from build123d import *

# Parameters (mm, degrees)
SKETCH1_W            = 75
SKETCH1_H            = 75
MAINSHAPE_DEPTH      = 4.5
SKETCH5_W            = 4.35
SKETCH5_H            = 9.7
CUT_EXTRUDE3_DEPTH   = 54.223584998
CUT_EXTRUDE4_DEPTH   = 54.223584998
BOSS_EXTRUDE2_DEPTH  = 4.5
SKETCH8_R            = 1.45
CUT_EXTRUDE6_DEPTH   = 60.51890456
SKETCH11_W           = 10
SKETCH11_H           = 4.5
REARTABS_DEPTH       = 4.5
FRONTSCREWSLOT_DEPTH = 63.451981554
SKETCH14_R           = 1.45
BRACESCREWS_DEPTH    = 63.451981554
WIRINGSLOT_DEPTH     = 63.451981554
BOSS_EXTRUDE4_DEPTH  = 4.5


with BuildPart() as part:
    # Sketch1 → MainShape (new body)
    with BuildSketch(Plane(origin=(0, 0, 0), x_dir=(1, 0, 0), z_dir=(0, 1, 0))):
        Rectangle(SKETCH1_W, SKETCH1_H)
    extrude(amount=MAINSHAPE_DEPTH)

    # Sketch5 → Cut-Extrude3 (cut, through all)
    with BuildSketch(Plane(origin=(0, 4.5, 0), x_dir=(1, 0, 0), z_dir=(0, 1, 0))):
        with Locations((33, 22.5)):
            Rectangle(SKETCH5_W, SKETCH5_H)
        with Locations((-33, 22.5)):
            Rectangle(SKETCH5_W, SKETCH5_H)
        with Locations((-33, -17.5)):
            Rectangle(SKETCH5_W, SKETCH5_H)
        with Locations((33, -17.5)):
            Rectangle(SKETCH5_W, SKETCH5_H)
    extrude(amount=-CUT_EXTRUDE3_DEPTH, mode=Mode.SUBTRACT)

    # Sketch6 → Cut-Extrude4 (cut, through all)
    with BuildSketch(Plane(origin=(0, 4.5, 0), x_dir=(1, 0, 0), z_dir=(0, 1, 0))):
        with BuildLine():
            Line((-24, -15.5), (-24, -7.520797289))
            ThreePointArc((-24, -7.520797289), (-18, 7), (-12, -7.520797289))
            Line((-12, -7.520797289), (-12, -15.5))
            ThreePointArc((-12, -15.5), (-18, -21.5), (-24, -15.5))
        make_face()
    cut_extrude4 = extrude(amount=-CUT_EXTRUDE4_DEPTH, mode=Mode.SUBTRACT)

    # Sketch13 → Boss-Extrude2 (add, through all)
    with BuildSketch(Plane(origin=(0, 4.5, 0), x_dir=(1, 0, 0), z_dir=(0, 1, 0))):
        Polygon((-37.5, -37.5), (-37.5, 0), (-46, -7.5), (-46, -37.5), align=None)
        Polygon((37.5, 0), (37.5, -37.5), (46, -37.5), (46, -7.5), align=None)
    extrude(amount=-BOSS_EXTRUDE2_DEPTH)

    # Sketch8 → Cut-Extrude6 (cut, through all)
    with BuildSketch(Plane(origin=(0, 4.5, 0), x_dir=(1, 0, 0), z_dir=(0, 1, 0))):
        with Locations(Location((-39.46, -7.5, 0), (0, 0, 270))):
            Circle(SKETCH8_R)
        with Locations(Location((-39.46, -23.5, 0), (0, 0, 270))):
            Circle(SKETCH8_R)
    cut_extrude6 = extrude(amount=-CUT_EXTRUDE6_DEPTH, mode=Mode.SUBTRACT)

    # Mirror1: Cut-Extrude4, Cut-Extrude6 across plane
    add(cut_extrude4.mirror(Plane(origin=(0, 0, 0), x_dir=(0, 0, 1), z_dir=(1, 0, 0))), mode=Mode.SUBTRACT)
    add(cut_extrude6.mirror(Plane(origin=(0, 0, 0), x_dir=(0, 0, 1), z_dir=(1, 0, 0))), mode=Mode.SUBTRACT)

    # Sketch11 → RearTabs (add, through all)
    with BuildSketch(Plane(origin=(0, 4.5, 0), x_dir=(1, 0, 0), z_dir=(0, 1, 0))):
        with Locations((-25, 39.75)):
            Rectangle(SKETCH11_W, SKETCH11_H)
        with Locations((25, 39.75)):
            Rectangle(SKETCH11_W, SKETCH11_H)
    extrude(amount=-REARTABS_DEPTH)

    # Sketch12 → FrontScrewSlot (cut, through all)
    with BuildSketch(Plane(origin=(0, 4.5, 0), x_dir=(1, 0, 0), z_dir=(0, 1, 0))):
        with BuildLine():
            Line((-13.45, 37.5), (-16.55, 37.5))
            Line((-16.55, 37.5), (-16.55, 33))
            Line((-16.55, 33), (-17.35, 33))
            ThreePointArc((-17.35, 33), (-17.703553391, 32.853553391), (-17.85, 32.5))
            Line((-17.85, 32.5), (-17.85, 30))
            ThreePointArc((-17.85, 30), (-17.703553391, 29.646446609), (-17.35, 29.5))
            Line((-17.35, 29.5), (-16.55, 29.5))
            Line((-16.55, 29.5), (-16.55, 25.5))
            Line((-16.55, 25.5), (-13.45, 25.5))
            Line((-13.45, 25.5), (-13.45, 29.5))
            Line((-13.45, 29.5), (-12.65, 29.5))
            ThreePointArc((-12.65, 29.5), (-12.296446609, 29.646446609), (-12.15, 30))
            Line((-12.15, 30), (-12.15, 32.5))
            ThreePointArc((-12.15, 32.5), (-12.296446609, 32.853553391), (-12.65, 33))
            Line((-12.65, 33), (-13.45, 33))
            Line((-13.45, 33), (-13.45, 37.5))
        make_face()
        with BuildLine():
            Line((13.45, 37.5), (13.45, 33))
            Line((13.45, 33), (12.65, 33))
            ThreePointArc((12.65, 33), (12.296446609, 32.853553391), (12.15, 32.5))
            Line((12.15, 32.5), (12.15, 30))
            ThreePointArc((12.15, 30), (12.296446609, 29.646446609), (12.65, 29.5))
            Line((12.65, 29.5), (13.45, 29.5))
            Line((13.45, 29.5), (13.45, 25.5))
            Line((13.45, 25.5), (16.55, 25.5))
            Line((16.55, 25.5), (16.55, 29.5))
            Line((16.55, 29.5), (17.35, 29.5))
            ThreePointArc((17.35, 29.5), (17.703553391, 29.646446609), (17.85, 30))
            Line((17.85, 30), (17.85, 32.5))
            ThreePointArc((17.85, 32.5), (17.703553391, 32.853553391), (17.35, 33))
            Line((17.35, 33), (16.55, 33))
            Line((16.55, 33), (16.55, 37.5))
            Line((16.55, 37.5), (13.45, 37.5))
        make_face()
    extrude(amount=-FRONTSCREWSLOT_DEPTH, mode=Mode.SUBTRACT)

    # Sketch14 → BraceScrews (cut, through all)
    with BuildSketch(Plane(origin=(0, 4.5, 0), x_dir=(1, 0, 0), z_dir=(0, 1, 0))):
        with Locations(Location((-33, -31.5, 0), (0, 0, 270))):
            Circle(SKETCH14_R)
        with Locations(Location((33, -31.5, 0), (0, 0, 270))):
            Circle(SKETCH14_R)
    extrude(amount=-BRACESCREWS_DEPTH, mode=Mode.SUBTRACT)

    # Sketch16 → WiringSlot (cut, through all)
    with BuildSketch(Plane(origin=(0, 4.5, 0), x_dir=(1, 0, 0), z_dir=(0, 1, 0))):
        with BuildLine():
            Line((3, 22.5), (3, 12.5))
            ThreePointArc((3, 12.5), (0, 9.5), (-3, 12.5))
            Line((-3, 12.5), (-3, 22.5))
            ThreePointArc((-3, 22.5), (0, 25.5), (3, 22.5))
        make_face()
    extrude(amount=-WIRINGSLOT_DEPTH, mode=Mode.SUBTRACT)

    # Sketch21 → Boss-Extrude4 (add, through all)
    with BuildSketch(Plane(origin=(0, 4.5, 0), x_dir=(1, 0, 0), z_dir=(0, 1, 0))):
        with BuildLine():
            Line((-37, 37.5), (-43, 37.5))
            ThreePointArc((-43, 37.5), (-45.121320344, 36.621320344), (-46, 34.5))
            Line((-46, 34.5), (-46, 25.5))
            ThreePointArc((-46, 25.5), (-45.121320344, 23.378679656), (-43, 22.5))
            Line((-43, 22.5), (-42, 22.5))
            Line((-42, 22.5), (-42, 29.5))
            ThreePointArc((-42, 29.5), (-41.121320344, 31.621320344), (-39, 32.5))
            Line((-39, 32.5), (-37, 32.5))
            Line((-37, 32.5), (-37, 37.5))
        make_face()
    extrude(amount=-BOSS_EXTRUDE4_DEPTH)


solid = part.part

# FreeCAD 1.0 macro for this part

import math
import FreeCAD as App
import Part
import Sketcher
from FreeCAD import Vector
Q = App.Units.Quantity

doc = App.newDocument("Part")
params = doc.addObject("Spreadsheet::Sheet", "Params")
for row, (alias, value) in enumerate([
    ("sketch1_width", "75 mm"),
    ("pad1_length", "4.5 mm"),
    ("sketch2_height", "9.7 mm"),
    ("sketch2_width", "4.35 mm"),
    ("sketch3_radius", "6 mm"),
    ("sketch3_radius2", "8.5 mm"),
    ("sketch4_height", "30 mm"),
    ("sketch4_width", "8.5 mm"),
    ("sketch4_height2", "37.5 mm"),
    ("sketch5_diameter", "2.9 mm"),
    ("sketch6_width", "10 mm"),
    ("sketch6_height", "4.5 mm"),
    ("pad3_length", "4.5 mm"),
    ("sketch7_radius", "0.5 mm"),
    ("sketch7_height", "4 mm"),
    ("sketch7_width", "3.1 mm"),
    ("sketch7_width2", "0.8 mm"),
    ("sketch7_height2", "4.5 mm"),
    ("sketch8_diameter", "2.9 mm"),
    ("sketch9_radius", "3 mm"),
    ("sketch9_height", "10 mm"),
    ("sketch10_radius", "3 mm"),
    ("sketch10_width", "6 mm"),
    ("sketch10_width2", "1 mm"),
    ("sketch10_height", "9 mm"),
    ("sketch10_height2", "7 mm"),
    ("pad4_length", "4.5 mm"),
], start=1):
    params.set(f"A{row}", alias)
    params.set(f"B{row}", "=" + value)
    params.setAlias(f"B{row}", alias)

body = doc.addObject("PartDesign::Body", "Body")

# Sketch on XZ plane
sketch1 = doc.addObject("Sketcher::SketchObject", "Sketch")
body.addObject(sketch1)
sketch1.AttachmentSupport = (doc.XZ_Plane, [""])
sketch1.MapMode = "FlatFace"
sketch1.addGeometry(Part.LineSegment(Vector(-37.5, -37.5, 0), Vector(-37.5, 37.5, 0)), False)
sketch1.addGeometry(Part.LineSegment(Vector(-37.5, 37.5, 0), Vector(37.5, 37.5, 0)), False)
sketch1.addGeometry(Part.LineSegment(Vector(37.5, 37.5, 0), Vector(37.5, -37.5, 0)), False)
sketch1.addGeometry(Part.LineSegment(Vector(37.5, -37.5, 0), Vector(-37.5, -37.5, 0)), False)
sketch1.addConstraint(Sketcher.Constraint("Coincident", 0, 2, 1, 1))
sketch1.addConstraint(Sketcher.Constraint("Coincident", 1, 2, 2, 1))
sketch1.addConstraint(Sketcher.Constraint("Coincident", 2, 2, 3, 1))
sketch1.addConstraint(Sketcher.Constraint("Coincident", 3, 2, 0, 1))
sketch1.addConstraint(Sketcher.Constraint("Vertical", 0))
sketch1.addConstraint(Sketcher.Constraint("Horizontal", 1))
sketch1.addConstraint(Sketcher.Constraint("Vertical", 2))
sketch1.addConstraint(Sketcher.Constraint("Horizontal", 3))
sketch1.addConstraint(Sketcher.Constraint("Symmetric", 0, 2, 2, 2, -1, 1))
sketch1.addConstraint(Sketcher.Constraint("Equal", 3, 0))
sketch1.addConstraint(Sketcher.Constraint("DistanceX", 1, 1, 1, 2, Q("75 mm")))
sketch1.setExpression("Constraints[10]", "Params.sketch1_width")
pad1 = doc.addObject("PartDesign::Pad", "Pad")
body.addObject(pad1)
pad1.Profile = sketch1
pad1.setExpression("Length", "Params.pad1_length")
pad1.Reversed = True

# Sketch on XZ plane
sketch2 = doc.addObject("Sketcher::SketchObject", "Sketch001")
body.addObject(sketch2)
sketch2.AttachmentSupport = (doc.XZ_Plane, [""])
sketch2.MapMode = "FlatFace"
sketch2.AttachmentOffset = App.Placement(Vector(0, 0, -4.5), App.Rotation())
sketch2.addGeometry(Part.LineSegment(Vector(30.825, -27.35, 0), Vector(30.825, -17.65, 0)), False)
sketch2.addGeometry(Part.LineSegment(Vector(30.825, -17.65, 0), Vector(35.175, -17.65, 0)), False)
sketch2.addGeometry(Part.LineSegment(Vector(35.175, -17.65, 0), Vector(35.175, -27.35, 0)), False)
sketch2.addGeometry(Part.LineSegment(Vector(35.175, -27.35, 0), Vector(30.825, -27.35, 0)), False)
sketch2.addGeometry(Part.LineSegment(Vector(-35.175, -27.35, 0), Vector(-35.175, -17.65, 0)), False)
sketch2.addGeometry(Part.LineSegment(Vector(-35.175, -17.65, 0), Vector(-30.825, -17.65, 0)), False)
sketch2.addGeometry(Part.LineSegment(Vector(-30.825, -17.65, 0), Vector(-30.825, -27.35, 0)), False)
sketch2.addGeometry(Part.LineSegment(Vector(-30.825, -27.35, 0), Vector(-35.175, -27.35, 0)), False)
sketch2.addGeometry(Part.LineSegment(Vector(-35.175, 12.65, 0), Vector(-35.175, 22.35, 0)), False)
sketch2.addGeometry(Part.LineSegment(Vector(-35.175, 22.35, 0), Vector(-30.825, 22.35, 0)), False)
sketch2.addGeometry(Part.LineSegment(Vector(-30.825, 22.35, 0), Vector(-30.825, 12.65, 0)), False)
sketch2.addGeometry(Part.LineSegment(Vector(-30.825, 12.65, 0), Vector(-35.175, 12.65, 0)), False)
sketch2.addGeometry(Part.LineSegment(Vector(30.825, 12.65, 0), Vector(30.825, 22.35, 0)), False)
sketch2.addGeometry(Part.LineSegment(Vector(30.825, 22.35, 0), Vector(35.175, 22.35, 0)), False)
sketch2.addGeometry(Part.LineSegment(Vector(35.175, 22.35, 0), Vector(35.175, 12.65, 0)), False)
sketch2.addGeometry(Part.LineSegment(Vector(35.175, 12.65, 0), Vector(30.825, 12.65, 0)), False)
sketch2.addConstraint(Sketcher.Constraint("Coincident", 0, 2, 1, 1))
sketch2.addConstraint(Sketcher.Constraint("Coincident", 1, 2, 2, 1))
sketch2.addConstraint(Sketcher.Constraint("Coincident", 2, 2, 3, 1))
sketch2.addConstraint(Sketcher.Constraint("Coincident", 3, 2, 0, 1))
sketch2.addConstraint(Sketcher.Constraint("Coincident", 4, 2, 5, 1))
sketch2.addConstraint(Sketcher.Constraint("Coincident", 5, 2, 6, 1))
sketch2.addConstraint(Sketcher.Constraint("Coincident", 6, 2, 7, 1))
sketch2.addConstraint(Sketcher.Constraint("Coincident", 7, 2, 4, 1))
sketch2.addConstraint(Sketcher.Constraint("Coincident", 8, 2, 9, 1))
sketch2.addConstraint(Sketcher.Constraint("Coincident", 9, 2, 10, 1))
sketch2.addConstraint(Sketcher.Constraint("Coincident", 10, 2, 11, 1))
sketch2.addConstraint(Sketcher.Constraint("Coincident", 11, 2, 8, 1))
sketch2.addConstraint(Sketcher.Constraint("Coincident", 12, 2, 13, 1))
sketch2.addConstraint(Sketcher.Constraint("Coincident", 13, 2, 14, 1))
sketch2.addConstraint(Sketcher.Constraint("Coincident", 14, 2, 15, 1))
sketch2.addConstraint(Sketcher.Constraint("Coincident", 15, 2, 12, 1))
sketch2.addConstraint(Sketcher.Constraint("Vertical", 0))
sketch2.addConstraint(Sketcher.Constraint("Horizontal", 1))
sketch2.addConstraint(Sketcher.Constraint("Vertical", 2))
sketch2.addConstraint(Sketcher.Constraint("Horizontal", 3))
sketch2.addConstraint(Sketcher.Constraint("Vertical", 4))
sketch2.addConstraint(Sketcher.Constraint("Horizontal", 5))
sketch2.addConstraint(Sketcher.Constraint("Vertical", 6))
sketch2.addConstraint(Sketcher.Constraint("Horizontal", 7))
sketch2.addConstraint(Sketcher.Constraint("Vertical", 8))
sketch2.addConstraint(Sketcher.Constraint("Horizontal", 9))
sketch2.addConstraint(Sketcher.Constraint("Vertical", 10))
sketch2.addConstraint(Sketcher.Constraint("Horizontal", 11))
sketch2.addConstraint(Sketcher.Constraint("Vertical", 12))
sketch2.addConstraint(Sketcher.Constraint("Horizontal", 13))
sketch2.addConstraint(Sketcher.Constraint("Vertical", 14))
sketch2.addConstraint(Sketcher.Constraint("Horizontal", 15))
sketch2.addConstraint(Sketcher.Constraint("Symmetric", 1, 2, 4, 2, -2))
sketch2.addConstraint(Sketcher.Constraint("Symmetric", 3, 2, 6, 2, -2))
sketch2.addConstraint(Sketcher.Constraint("Symmetric", 9, 2, 12, 2, -2))
sketch2.addConstraint(Sketcher.Constraint("Symmetric", 11, 2, 14, 2, -2))
sketch2.addConstraint(Sketcher.Constraint("Vertical", 7, 2, 8, 2))
sketch2.addConstraint(Sketcher.Constraint("Vertical", 6, 2, 9, 2))
sketch2.addConstraint(Sketcher.Constraint("Equal", 6, 8))
sketch2.addConstraint(Sketcher.Constraint("DistanceY", 0, 1, 0, 2, Q("9.7 mm")))
sketch2.addConstraint(Sketcher.Constraint("DistanceX", 4, 2, 0, 2, Q("66 mm")))
sketch2.addConstraint(Sketcher.Constraint("DistanceY", 4, 2, 8, 2, Q("40 mm")))
sketch2.addConstraint(Sketcher.Constraint("DistanceX", 1, 1, 1, 2, Q("4.35 mm")))
sketch2.addConstraint(Sketcher.Constraint("DistanceY", 0, 2, -1, 1, Q("17.65 mm")))
sketch2.setExpression("Constraints[39]", "Params.sketch2_height")
sketch2.setExpression("Constraints[42]", "Params.sketch2_width")
pocket1 = doc.addObject("PartDesign::Pocket", "Pocket")
body.addObject(pocket1)
pocket1.Profile = sketch2
pocket1.Type = "ThroughAll"
pocket1.Reversed = True

# Sketch on XZ plane
sketch3 = doc.addObject("Sketcher::SketchObject", "Sketch002")
body.addObject(sketch3)
sketch3.AttachmentSupport = (doc.XZ_Plane, [""])
sketch3.MapMode = "FlatFace"
sketch3.AttachmentOffset = App.Placement(Vector(0, 0, -4.5), App.Rotation())
sketch3.addGeometry(Part.LineSegment(Vector(-24, 7.520797, 0), Vector(-24, 15.5, 0)), False)
sketch3.addGeometry(Part.ArcOfCircle(Part.Circle(Vector(-18, 15.5, 0), Vector(0, 0, 1), 6), math.radians(0), math.radians(180)), False)
sketch3.addGeometry(Part.LineSegment(Vector(-12, 15.5, 0), Vector(-12, 7.520797, 0)), False)
sketch3.addGeometry(Part.ArcOfCircle(Part.Circle(Vector(-18, 1.5, 0), Vector(0, 0, 1), 8.5), math.radians(134.900872), math.radians(405.099128)), False)
sketch3.addConstraint(Sketcher.Constraint("Tangent", 0, 2, 1, 2))
sketch3.addConstraint(Sketcher.Constraint("Tangent", 1, 1, 2, 1))
sketch3.addConstraint(Sketcher.Constraint("Coincident", 2, 2, 3, 2))
sketch3.addConstraint(Sketcher.Constraint("Coincident", 3, 1, 0, 1))
sketch3.addConstraint(Sketcher.Constraint("Vertical", 0))
sketch3.addConstraint(Sketcher.Constraint("Vertical", 2))
sketch3.addConstraint(Sketcher.Constraint("Horizontal", 2, 2, 3, 1))
sketch3.addConstraint(Sketcher.Constraint("Radius", 1, Q("6 mm")))
sketch3.addConstraint(Sketcher.Constraint("Radius", 3, Q("8.5 mm")))
sketch3.addConstraint(Sketcher.Constraint("DistanceX", 1, 3, -1, 1, Q("18 mm")))
sketch3.addConstraint(Sketcher.Constraint("DistanceY", 3, 3, 1, 3, Q("14 mm")))
sketch3.addConstraint(Sketcher.Constraint("DistanceY", -1, 1, 1, 3, Q("15.5 mm")))
sketch3.setExpression("Constraints[7]", "Params.sketch3_radius")
sketch3.setExpression("Constraints[8]", "Params.sketch3_radius2")
pocket2 = doc.addObject("PartDesign::Pocket", "Pocket001")
body.addObject(pocket2)
pocket2.Profile = sketch3
pocket2.Type = "ThroughAll"
pocket2.Reversed = True

# Sketch on XZ plane
sketch4 = doc.addObject("Sketcher::SketchObject", "Sketch003")
body.addObject(sketch4)
sketch4.AttachmentSupport = (doc.XZ_Plane, [""])
sketch4.MapMode = "FlatFace"
sketch4.AttachmentOffset = App.Placement(Vector(0, 0, -4.5), App.Rotation())
sketch4.addGeometry(Part.LineSegment(Vector(-37.5, 37.5, 0), Vector(-37.5, 0, 0)), False)
sketch4.addGeometry(Part.LineSegment(Vector(-37.5, 0, 0), Vector(-46, 7.5, 0)), False)
sketch4.addGeometry(Part.LineSegment(Vector(-46, 7.5, 0), Vector(-46, 37.5, 0)), False)
sketch4.addGeometry(Part.LineSegment(Vector(-46, 37.5, 0), Vector(-37.5, 37.5, 0)), False)
sketch4.addGeometry(Part.LineSegment(Vector(37.5, 0, 0), Vector(37.5, 37.5, 0)), False)
sketch4.addGeometry(Part.LineSegment(Vector(37.5, 37.5, 0), Vector(46, 37.5, 0)), False)
sketch4.addGeometry(Part.LineSegment(Vector(46, 37.5, 0), Vector(46, 7.5, 0)), False)
sketch4.addGeometry(Part.LineSegment(Vector(46, 7.5, 0), Vector(37.5, 0, 0)), False)
sketch4.addConstraint(Sketcher.Constraint("Coincident", 0, 2, 1, 1))
sketch4.addConstraint(Sketcher.Constraint("Coincident", 1, 2, 2, 1))
sketch4.addConstraint(Sketcher.Constraint("Coincident", 2, 2, 3, 1))
sketch4.addConstraint(Sketcher.Constraint("Coincident", 3, 2, 0, 1))
sketch4.addConstraint(Sketcher.Constraint("Coincident", 4, 2, 5, 1))
sketch4.addConstraint(Sketcher.Constraint("Coincident", 5, 2, 6, 1))
sketch4.addConstraint(Sketcher.Constraint("Coincident", 6, 2, 7, 1))
sketch4.addConstraint(Sketcher.Constraint("Coincident", 7, 2, 4, 1))
sketch4.addConstraint(Sketcher.Constraint("Vertical", 0))
sketch4.addConstraint(Sketcher.Constraint("Vertical", 2))
sketch4.addConstraint(Sketcher.Constraint("Horizontal", 3))
sketch4.addConstraint(Sketcher.Constraint("Vertical", 4))
sketch4.addConstraint(Sketcher.Constraint("Horizontal", 5))
sketch4.addConstraint(Sketcher.Constraint("Vertical", 6))
sketch4.addConstraint(Sketcher.Constraint("Symmetric", 0, 2, 7, 2, -1, 1))
sketch4.addConstraint(Sketcher.Constraint("Symmetric", 2, 2, 5, 2, -2))
sketch4.addConstraint(Sketcher.Constraint("PointOnObject", 0, 2, -1))
sketch4.addConstraint(Sketcher.Constraint("Horizontal", 1, 2, 6, 2))
sketch4.addConstraint(Sketcher.Constraint("DistanceY", 2, 1, 2, 2, Q("30 mm")))
sketch4.addConstraint(Sketcher.Constraint("DistanceX", 3, 1, 3, 2, Q("8.5 mm")))
sketch4.addConstraint(Sketcher.Constraint("DistanceY", 0, 2, 0, 1, Q("37.5 mm")))
sketch4.addConstraint(Sketcher.Constraint("DistanceX", 1, 2, -1, 1, Q("46 mm")))
sketch4.setExpression("Constraints[18]", "Params.sketch4_height")
sketch4.setExpression("Constraints[19]", "Params.sketch4_width")
sketch4.setExpression("Constraints[20]", "Params.sketch4_height2")
pad2 = doc.addObject("PartDesign::Pad", "Pad001")
body.addObject(pad2)
pad2.Profile = sketch4
pad2.Type = "UpToLast"

# Sketch on XZ plane
sketch5 = doc.addObject("Sketcher::SketchObject", "Sketch004")
body.addObject(sketch5)
sketch5.AttachmentSupport = (doc.XZ_Plane, [""])
sketch5.MapMode = "FlatFace"
sketch5.AttachmentOffset = App.Placement(Vector(0, 0, -4.5), App.Rotation())
sketch5.addGeometry(Part.Circle(Vector(-39.46, 7.5, 0), Vector(0, 0, 1), 1.45), False)
sketch5.addGeometry(Part.Circle(Vector(-39.46, 23.5, 0), Vector(0, 0, 1), 1.45), False)
sketch5.addConstraint(Sketcher.Constraint("Equal", 0, 1))
sketch5.addConstraint(Sketcher.Constraint("Vertical", 0, 3, 1, 3))
sketch5.addConstraint(Sketcher.Constraint("Diameter", 0, Q("2.9 mm")))
sketch5.addConstraint(Sketcher.Constraint("DistanceY", 0, 3, 1, 3, Q("16 mm")))
sketch5.addConstraint(Sketcher.Constraint("DistanceY", -1, 1, 0, 3, Q("7.5 mm")))
sketch5.addConstraint(Sketcher.Constraint("DistanceX", 0, 3, -1, 1, Q("39.46 mm")))
sketch5.setExpression("Constraints[2]", "Params.sketch5_diameter")
pocket3 = doc.addObject("PartDesign::Pocket", "Pocket002")
body.addObject(pocket3)
pocket3.Profile = sketch5
pocket3.Type = "ThroughAll"
pocket3.Reversed = True
doc.recompute()

mirrored = doc.addObject("PartDesign::Mirrored", "Mirrored")
body.addObject(mirrored)
mirrored.Originals = [pocket2, pocket3]
mirrored.MirrorPlane = (doc.YZ_Plane, [""])
body.Tip = mirrored

# Sketch on XZ plane
sketch6 = doc.addObject("Sketcher::SketchObject", "Sketch005")
body.addObject(sketch6)
sketch6.AttachmentSupport = (doc.XZ_Plane, [""])
sketch6.MapMode = "FlatFace"
sketch6.AttachmentOffset = App.Placement(Vector(0, 0, -4.5), App.Rotation())
sketch6.addGeometry(Part.LineSegment(Vector(-30, -42, 0), Vector(-30, -37.5, 0)), False)
sketch6.addGeometry(Part.LineSegment(Vector(-30, -37.5, 0), Vector(-20, -37.5, 0)), False)
sketch6.addGeometry(Part.LineSegment(Vector(-20, -37.5, 0), Vector(-20, -42, 0)), False)
sketch6.addGeometry(Part.LineSegment(Vector(-20, -42, 0), Vector(-30, -42, 0)), False)
sketch6.addGeometry(Part.LineSegment(Vector(20, -42, 0), Vector(20, -37.5, 0)), False)
sketch6.addGeometry(Part.LineSegment(Vector(20, -37.5, 0), Vector(30, -37.5, 0)), False)
sketch6.addGeometry(Part.LineSegment(Vector(30, -37.5, 0), Vector(30, -42, 0)), False)
sketch6.addGeometry(Part.LineSegment(Vector(30, -42, 0), Vector(20, -42, 0)), False)
sketch6.addConstraint(Sketcher.Constraint("Coincident", 0, 2, 1, 1))
sketch6.addConstraint(Sketcher.Constraint("Coincident", 1, 2, 2, 1))
sketch6.addConstraint(Sketcher.Constraint("Coincident", 2, 2, 3, 1))
sketch6.addConstraint(Sketcher.Constraint("Coincident", 3, 2, 0, 1))
sketch6.addConstraint(Sketcher.Constraint("Coincident", 4, 2, 5, 1))
sketch6.addConstraint(Sketcher.Constraint("Coincident", 5, 2, 6, 1))
sketch6.addConstraint(Sketcher.Constraint("Coincident", 6, 2, 7, 1))
sketch6.addConstraint(Sketcher.Constraint("Coincident", 7, 2, 4, 1))
sketch6.addConstraint(Sketcher.Constraint("Vertical", 0))
sketch6.addConstraint(Sketcher.Constraint("Horizontal", 1))
sketch6.addConstraint(Sketcher.Constraint("Vertical", 2))
sketch6.addConstraint(Sketcher.Constraint("Horizontal", 3))
sketch6.addConstraint(Sketcher.Constraint("Vertical", 4))
sketch6.addConstraint(Sketcher.Constraint("Horizontal", 5))
sketch6.addConstraint(Sketcher.Constraint("Vertical", 6))
sketch6.addConstraint(Sketcher.Constraint("Horizontal", 7))
sketch6.addConstraint(Sketcher.Constraint("Symmetric", 1, 2, 4, 2, -2))
sketch6.addConstraint(Sketcher.Constraint("Symmetric", 3, 2, 6, 2, -2))
sketch6.addConstraint(Sketcher.Constraint("DistanceX", 1, 1, 1, 2, Q("10 mm")))
sketch6.addConstraint(Sketcher.Constraint("DistanceY", 0, 1, 0, 2, Q("4.5 mm")))
sketch6.addConstraint(Sketcher.Constraint("DistanceX", 0, 2, -1, 1, Q("30 mm")))
sketch6.addConstraint(Sketcher.Constraint("DistanceY", 2, 2, -1, 1, Q("42 mm")))
sketch6.setExpression("Constraints[18]", "Params.sketch6_width")
sketch6.setExpression("Constraints[19]", "Params.sketch6_height")
pad3 = doc.addObject("PartDesign::Pad", "Pad002")
body.addObject(pad3)
pad3.Profile = sketch6
pad3.setExpression("Length", "Params.pad3_length")

# Sketch on XZ plane
sketch7 = doc.addObject("Sketcher::SketchObject", "Sketch006")
body.addObject(sketch7)
sketch7.AttachmentSupport = (doc.XZ_Plane, [""])
sketch7.MapMode = "FlatFace"
sketch7.AttachmentOffset = App.Placement(Vector(0, 0, -4.5), App.Rotation())
sketch7.addGeometry(Part.LineSegment(Vector(-13.45, -37.5, 0), Vector(-16.55, -37.5, 0)), False)
sketch7.addGeometry(Part.LineSegment(Vector(-16.55, -37.5, 0), Vector(-16.55, -33, 0)), False)
sketch7.addGeometry(Part.LineSegment(Vector(-16.55, -33, 0), Vector(-17.35, -33, 0)), False)
sketch7.addGeometry(Part.ArcOfCircle(Part.Circle(Vector(-17.35, -32.5, 0), Vector(0, 0, 1), 0.5), math.radians(180), math.radians(270)), False)
sketch7.addGeometry(Part.LineSegment(Vector(-17.85, -32.5, 0), Vector(-17.85, -30, 0)), False)
sketch7.addGeometry(Part.ArcOfCircle(Part.Circle(Vector(-17.35, -30, 0), Vector(0, 0, 1), 0.5), math.radians(90), math.radians(180)), False)
sketch7.addGeometry(Part.LineSegment(Vector(-17.35, -29.5, 0), Vector(-16.55, -29.5, 0)), False)
sketch7.addGeometry(Part.LineSegment(Vector(-16.55, -29.5, 0), Vector(-16.55, -25.5, 0)), False)
sketch7.addGeometry(Part.LineSegment(Vector(-16.55, -25.5, 0), Vector(-13.45, -25.5, 0)), False)
sketch7.addGeometry(Part.LineSegment(Vector(-13.45, -25.5, 0), Vector(-13.45, -29.5, 0)), False)
sketch7.addGeometry(Part.LineSegment(Vector(-13.45, -29.5, 0), Vector(-12.65, -29.5, 0)), False)
sketch7.addGeometry(Part.ArcOfCircle(Part.Circle(Vector(-12.65, -30, 0), Vector(0, 0, 1), 0.5), math.radians(0), math.radians(90)), False)
sketch7.addGeometry(Part.LineSegment(Vector(-12.15, -30, 0), Vector(-12.15, -32.5, 0)), False)
sketch7.addGeometry(Part.ArcOfCircle(Part.Circle(Vector(-12.65, -32.5, 0), Vector(0, 0, 1), 0.5), math.radians(-90), math.radians(0)), False)
sketch7.addGeometry(Part.LineSegment(Vector(-12.65, -33, 0), Vector(-13.45, -33, 0)), False)
sketch7.addGeometry(Part.LineSegment(Vector(-13.45, -33, 0), Vector(-13.45, -37.5, 0)), False)
sketch7.addGeometry(Part.LineSegment(Vector(13.45, -37.5, 0), Vector(13.45, -33, 0)), False)
sketch7.addGeometry(Part.LineSegment(Vector(13.45, -33, 0), Vector(12.65, -33, 0)), False)
sketch7.addGeometry(Part.ArcOfCircle(Part.Circle(Vector(12.65, -32.5, 0), Vector(0, 0, 1), 0.5), math.radians(180), math.radians(270)), False)
sketch7.addGeometry(Part.LineSegment(Vector(12.15, -32.5, 0), Vector(12.15, -30, 0)), False)
sketch7.addGeometry(Part.ArcOfCircle(Part.Circle(Vector(12.65, -30, 0), Vector(0, 0, 1), 0.5), math.radians(90), math.radians(180)), False)
sketch7.addGeometry(Part.LineSegment(Vector(12.65, -29.5, 0), Vector(13.45, -29.5, 0)), False)
sketch7.addGeometry(Part.LineSegment(Vector(13.45, -29.5, 0), Vector(13.45, -25.5, 0)), False)
sketch7.addGeometry(Part.LineSegment(Vector(13.45, -25.5, 0), Vector(16.55, -25.5, 0)), False)
sketch7.addGeometry(Part.LineSegment(Vector(16.55, -25.5, 0), Vector(16.55, -29.5, 0)), False)
sketch7.addGeometry(Part.LineSegment(Vector(16.55, -29.5, 0), Vector(17.35, -29.5, 0)), False)
sketch7.addGeometry(Part.ArcOfCircle(Part.Circle(Vector(17.35, -30, 0), Vector(0, 0, 1), 0.5), math.radians(0), math.radians(90)), False)
sketch7.addGeometry(Part.LineSegment(Vector(17.85, -30, 0), Vector(17.85, -32.5, 0)), False)
sketch7.addGeometry(Part.ArcOfCircle(Part.Circle(Vector(17.35, -32.5, 0), Vector(0, 0, 1), 0.5), math.radians(-90), math.radians(0)), False)
sketch7.addGeometry(Part.LineSegment(Vector(17.35, -33, 0), Vector(16.55, -33, 0)), False)
sketch7.addGeometry(Part.LineSegment(Vector(16.55, -33, 0), Vector(16.55, -37.5, 0)), False)
sketch7.addGeometry(Part.LineSegment(Vector(16.55, -37.5, 0), Vector(13.45, -37.5, 0)), False)
sketch7.addConstraint(Sketcher.Constraint("Coincident", 0, 2, 1, 1))
sketch7.addConstraint(Sketcher.Constraint("Coincident", 1, 2, 2, 1))
sketch7.addConstraint(Sketcher.Constraint("Tangent", 2, 2, 3, 2))
sketch7.addConstraint(Sketcher.Constraint("Tangent", 3, 1, 4, 1))
sketch7.addConstraint(Sketcher.Constraint("Tangent", 4, 2, 5, 2))
sketch7.addConstraint(Sketcher.Constraint("Tangent", 5, 1, 6, 1))
sketch7.addConstraint(Sketcher.Constraint("Coincident", 6, 2, 7, 1))
sketch7.addConstraint(Sketcher.Constraint("Coincident", 7, 2, 8, 1))
sketch7.addConstraint(Sketcher.Constraint("Coincident", 8, 2, 9, 1))
sketch7.addConstraint(Sketcher.Constraint("Coincident", 9, 2, 10, 1))
sketch7.addConstraint(Sketcher.Constraint("Tangent", 10, 2, 11, 2))
sketch7.addConstraint(Sketcher.Constraint("Tangent", 11, 1, 12, 1))
sketch7.addConstraint(Sketcher.Constraint("Tangent", 12, 2, 13, 2))
sketch7.addConstraint(Sketcher.Constraint("Tangent", 13, 1, 14, 1))
sketch7.addConstraint(Sketcher.Constraint("Coincident", 14, 2, 15, 1))
sketch7.addConstraint(Sketcher.Constraint("Coincident", 15, 2, 0, 1))
sketch7.addConstraint(Sketcher.Constraint("Coincident", 16, 2, 17, 1))
sketch7.addConstraint(Sketcher.Constraint("Tangent", 17, 2, 18, 2))
sketch7.addConstraint(Sketcher.Constraint("Tangent", 18, 1, 19, 1))
sketch7.addConstraint(Sketcher.Constraint("Tangent", 19, 2, 20, 2))
sketch7.addConstraint(Sketcher.Constraint("Tangent", 20, 1, 21, 1))
sketch7.addConstraint(Sketcher.Constraint("Coincident", 21, 2, 22, 1))
sketch7.addConstraint(Sketcher.Constraint("Coincident", 22, 2, 23, 1))
sketch7.addConstraint(Sketcher.Constraint("Coincident", 23, 2, 24, 1))
sketch7.addConstraint(Sketcher.Constraint("Coincident", 24, 2, 25, 1))
sketch7.addConstraint(Sketcher.Constraint("Tangent", 25, 2, 26, 2))
sketch7.addConstraint(Sketcher.Constraint("Tangent", 26, 1, 27, 1))
sketch7.addConstraint(Sketcher.Constraint("Tangent", 27, 2, 28, 2))
sketch7.addConstraint(Sketcher.Constraint("Tangent", 28, 1, 29, 1))
sketch7.addConstraint(Sketcher.Constraint("Coincident", 29, 2, 30, 1))
sketch7.addConstraint(Sketcher.Constraint("Coincident", 30, 2, 31, 1))
sketch7.addConstraint(Sketcher.Constraint("Coincident", 31, 2, 16, 1))
sketch7.addConstraint(Sketcher.Constraint("Horizontal", 0))
sketch7.addConstraint(Sketcher.Constraint("Vertical", 1))
sketch7.addConstraint(Sketcher.Constraint("Horizontal", 2))
sketch7.addConstraint(Sketcher.Constraint("Vertical", 4))
sketch7.addConstraint(Sketcher.Constraint("Horizontal", 6))
sketch7.addConstraint(Sketcher.Constraint("Vertical", 7))
sketch7.addConstraint(Sketcher.Constraint("Horizontal", 8))
sketch7.addConstraint(Sketcher.Constraint("Vertical", 9))
sketch7.addConstraint(Sketcher.Constraint("Horizontal", 10))
sketch7.addConstraint(Sketcher.Constraint("Vertical", 12))
sketch7.addConstraint(Sketcher.Constraint("Horizontal", 14))
sketch7.addConstraint(Sketcher.Constraint("Vertical", 15))
sketch7.addConstraint(Sketcher.Constraint("Vertical", 16))
sketch7.addConstraint(Sketcher.Constraint("Horizontal", 17))
sketch7.addConstraint(Sketcher.Constraint("Vertical", 19))
sketch7.addConstraint(Sketcher.Constraint("Horizontal", 21))
sketch7.addConstraint(Sketcher.Constraint("Vertical", 22))
sketch7.addConstraint(Sketcher.Constraint("Horizontal", 23))
sketch7.addConstraint(Sketcher.Constraint("Vertical", 24))
sketch7.addConstraint(Sketcher.Constraint("Horizontal", 25))
sketch7.addConstraint(Sketcher.Constraint("Vertical", 27))
sketch7.addConstraint(Sketcher.Constraint("Horizontal", 29))
sketch7.addConstraint(Sketcher.Constraint("Vertical", 30))
sketch7.addConstraint(Sketcher.Constraint("Horizontal", 31))
sketch7.addConstraint(Sketcher.Constraint("Equal", 3, 5))
sketch7.addConstraint(Sketcher.Constraint("Equal", 5, 11))
sketch7.addConstraint(Sketcher.Constraint("Equal", 11, 13))
sketch7.addConstraint(Sketcher.Constraint("Equal", 13, 18))
sketch7.addConstraint(Sketcher.Constraint("Equal", 18, 20))
sketch7.addConstraint(Sketcher.Constraint("Equal", 20, 26))
sketch7.addConstraint(Sketcher.Constraint("Equal", 26, 28))
sketch7.addConstraint(Sketcher.Constraint("Symmetric", 13, 3, 18, 3, -2))
sketch7.addConstraint(Sketcher.Constraint("Symmetric", 5, 3, 26, 3, -2))
sketch7.addConstraint(Sketcher.Constraint("Symmetric", 9, 2, 21, 2, -2))
sketch7.addConstraint(Sketcher.Constraint("Symmetric", 7, 2, 23, 2, -2))
sketch7.addConstraint(Sketcher.Constraint("Symmetric", 1, 2, 29, 2, -2))
sketch7.addConstraint(Sketcher.Constraint("Symmetric", 15, 2, 31, 2, -2))
sketch7.addConstraint(Sketcher.Constraint("Horizontal", 5, 3, 11, 3))
sketch7.addConstraint(Sketcher.Constraint("Horizontal", 3, 3, 13, 3))
sketch7.addConstraint(Sketcher.Constraint("Vertical", 1, 2, 6, 2))
sketch7.addConstraint(Sketcher.Constraint("Vertical", 9, 2, 14, 2))
sketch7.addConstraint(Sketcher.Constraint("Equal", 6, 10))
sketch7.addConstraint(Sketcher.Constraint("Radius", 3, Q("0.5 mm")))
sketch7.addConstraint(Sketcher.Constraint("DistanceY", 7, 1, 7, 2, Q("4 mm")))
sketch7.addConstraint(Sketcher.Constraint("DistanceX", 0, 2, 0, 1, Q("3.1 mm")))
sketch7.addConstraint(Sketcher.Constraint("DistanceX", 2, 2, 2, 1, Q("0.8 mm")))
sketch7.addConstraint(Sketcher.Constraint("DistanceY", 1, 1, 1, 2, Q("4.5 mm")))
sketch7.addConstraint(Sketcher.Constraint("DistanceY", 4, 1, 4, 2, Q("2.5 mm")))
sketch7.addConstraint(Sketcher.Constraint("DistanceY", 5, 3, -1, 1, Q("30 mm")))
sketch7.addConstraint(Sketcher.Constraint("DistanceX", 3, 3, 18, 3, Q("30 mm")))
sketch7.setExpression("Constraints[74]", "Params.sketch7_radius")
sketch7.setExpression("Constraints[75]", "Params.sketch7_height")
sketch7.setExpression("Constraints[76]", "Params.sketch7_width")
sketch7.setExpression("Constraints[77]", "Params.sketch7_width2")
sketch7.setExpression("Constraints[78]", "Params.sketch7_height2")
pocket4 = doc.addObject("PartDesign::Pocket", "Pocket003")
body.addObject(pocket4)
pocket4.Profile = sketch7
pocket4.Type = "ThroughAll"
pocket4.Reversed = True

# Sketch on XZ plane
sketch8 = doc.addObject("Sketcher::SketchObject", "Sketch007")
body.addObject(sketch8)
sketch8.AttachmentSupport = (doc.XZ_Plane, [""])
sketch8.MapMode = "FlatFace"
sketch8.AttachmentOffset = App.Placement(Vector(0, 0, -4.5), App.Rotation())
sketch8.addGeometry(Part.Circle(Vector(-33, 31.5, 0), Vector(0, 0, 1), 1.45), False)
sketch8.addGeometry(Part.Circle(Vector(33, 31.5, 0), Vector(0, 0, 1), 1.45), False)
sketch8.addConstraint(Sketcher.Constraint("Equal", 0, 1))
sketch8.addConstraint(Sketcher.Constraint("Symmetric", 0, 3, 1, 3, -2))
sketch8.addConstraint(Sketcher.Constraint("Diameter", 0, Q("2.9 mm")))
sketch8.addConstraint(Sketcher.Constraint("DistanceX", 0, 3, -1, 1, Q("33 mm")))
sketch8.addConstraint(Sketcher.Constraint("DistanceY", -1, 1, 0, 3, Q("31.5 mm")))
sketch8.setExpression("Constraints[2]", "Params.sketch8_diameter")
pocket5 = doc.addObject("PartDesign::Pocket", "Pocket004")
body.addObject(pocket5)
pocket5.Profile = sketch8
pocket5.Type = "ThroughAll"
pocket5.Reversed = True

# Sketch on XZ plane
sketch9 = doc.addObject("Sketcher::SketchObject", "Sketch008")
body.addObject(sketch9)
sketch9.AttachmentSupport = (doc.XZ_Plane, [""])
sketch9.MapMode = "FlatFace"
sketch9.AttachmentOffset = App.Placement(Vector(0, 0, -4.5), App.Rotation())
sketch9.addGeometry(Part.LineSegment(Vector(3, -12.5, 0), Vector(3, -22.5, 0)), False)
sketch9.addGeometry(Part.ArcOfCircle(Part.Circle(Vector(0, -22.5, 0), Vector(0, 0, 1), 3), math.radians(180), math.radians(360)), False)
sketch9.addGeometry(Part.LineSegment(Vector(-3, -22.5, 0), Vector(-3, -12.5, 0)), False)
sketch9.addGeometry(Part.ArcOfCircle(Part.Circle(Vector(0, -12.5, 0), Vector(0, 0, 1), 3), math.radians(0), math.radians(180)), False)
sketch9.addConstraint(Sketcher.Constraint("Tangent", 0, 2, 1, 2))
sketch9.addConstraint(Sketcher.Constraint("Tangent", 1, 1, 2, 1))
sketch9.addConstraint(Sketcher.Constraint("Tangent", 2, 2, 3, 2))
sketch9.addConstraint(Sketcher.Constraint("Tangent", 3, 1, 0, 1))
sketch9.addConstraint(Sketcher.Constraint("Vertical", 0))
sketch9.addConstraint(Sketcher.Constraint("Vertical", 2))
sketch9.addConstraint(Sketcher.Constraint("PointOnObject", 1, 3, -2))
sketch9.addConstraint(Sketcher.Constraint("Radius", 1, Q("3 mm")))
sketch9.addConstraint(Sketcher.Constraint("DistanceY", 0, 2, 0, 1, Q("10 mm")))
sketch9.addConstraint(Sketcher.Constraint("DistanceY", 1, 3, -1, 1, Q("22.5 mm")))
sketch9.setExpression("Constraints[7]", "Params.sketch9_radius")
sketch9.setExpression("Constraints[8]", "Params.sketch9_height")
pocket6 = doc.addObject("PartDesign::Pocket", "Pocket005")
body.addObject(pocket6)
pocket6.Profile = sketch9
pocket6.Type = "ThroughAll"
pocket6.Reversed = True

# Sketch on XZ plane
sketch10 = doc.addObject("Sketcher::SketchObject", "Sketch009")
body.addObject(sketch10)
sketch10.AttachmentSupport = (doc.XZ_Plane, [""])
sketch10.MapMode = "FlatFace"
sketch10.AttachmentOffset = App.Placement(Vector(0, 0, -4.5), App.Rotation())
sketch10.addGeometry(Part.LineSegment(Vector(-37, -37.5, 0), Vector(-43, -37.5, 0)), False)
sketch10.addGeometry(Part.ArcOfCircle(Part.Circle(Vector(-43, -34.5, 0), Vector(0, 0, 1), 3), math.radians(180), math.radians(270)), False)
sketch10.addGeometry(Part.LineSegment(Vector(-46, -34.5, 0), Vector(-46, -25.5, 0)), False)
sketch10.addGeometry(Part.ArcOfCircle(Part.Circle(Vector(-43, -25.5, 0), Vector(0, 0, 1), 3), math.radians(90), math.radians(180)), False)
sketch10.addGeometry(Part.LineSegment(Vector(-43, -22.5, 0), Vector(-42, -22.5, 0)), False)
sketch10.addGeometry(Part.LineSegment(Vector(-42, -22.5, 0), Vector(-42, -29.5, 0)), False)
sketch10.addGeometry(Part.ArcOfCircle(Part.Circle(Vector(-39, -29.5, 0), Vector(0, 0, 1), 3), math.radians(180), math.radians(270)), False)
sketch10.addGeometry(Part.LineSegment(Vector(-39, -32.5, 0), Vector(-37, -32.5, 0)), False)
sketch10.addGeometry(Part.LineSegment(Vector(-37, -32.5, 0), Vector(-37, -37.5, 0)), False)
sketch10.addConstraint(Sketcher.Constraint("Tangent", 0, 2, 1, 2))
sketch10.addConstraint(Sketcher.Constraint("Tangent", 1, 1, 2, 1))
sketch10.addConstraint(Sketcher.Constraint("Tangent", 2, 2, 3, 2))
sketch10.addConstraint(Sketcher.Constraint("Tangent", 3, 1, 4, 1))
sketch10.addConstraint(Sketcher.Constraint("Coincident", 4, 2, 5, 1))
sketch10.addConstraint(Sketcher.Constraint("Tangent", 5, 2, 6, 1))
sketch10.addConstraint(Sketcher.Constraint("Tangent", 6, 2, 7, 1))
sketch10.addConstraint(Sketcher.Constraint("Coincident", 7, 2, 8, 1))
sketch10.addConstraint(Sketcher.Constraint("Coincident", 8, 2, 0, 1))
sketch10.addConstraint(Sketcher.Constraint("Horizontal", 0))
sketch10.addConstraint(Sketcher.Constraint("Vertical", 2))
sketch10.addConstraint(Sketcher.Constraint("Horizontal", 4))
sketch10.addConstraint(Sketcher.Constraint("Vertical", 5))
sketch10.addConstraint(Sketcher.Constraint("Horizontal", 7))
sketch10.addConstraint(Sketcher.Constraint("Vertical", 8))
sketch10.addConstraint(Sketcher.Constraint("Equal", 1, 3))
sketch10.addConstraint(Sketcher.Constraint("Equal", 3, 6))
sketch10.addConstraint(Sketcher.Constraint("Radius", 1, Q("3 mm")))
sketch10.addConstraint(Sketcher.Constraint("DistanceX", 0, 2, 0, 1, Q("6 mm")))
sketch10.addConstraint(Sketcher.Constraint("DistanceX", 4, 1, 4, 2, Q("1 mm")))
sketch10.addConstraint(Sketcher.Constraint("DistanceY", 2, 1, 2, 2, Q("9 mm")))
sketch10.addConstraint(Sketcher.Constraint("DistanceY", 5, 2, 5, 1, Q("7 mm")))
sketch10.addConstraint(Sketcher.Constraint("DistanceX", 1, 3, -1, 1, Q("43 mm")))
sketch10.addConstraint(Sketcher.Constraint("DistanceY", 1, 3, -1, 1, Q("34.5 mm")))
sketch10.setExpression("Constraints[17]", "Params.sketch10_radius")
sketch10.setExpression("Constraints[18]", "Params.sketch10_width")
sketch10.setExpression("Constraints[19]", "Params.sketch10_width2")
sketch10.setExpression("Constraints[20]", "Params.sketch10_height")
sketch10.setExpression("Constraints[21]", "Params.sketch10_height2")
pad4 = doc.addObject("PartDesign::Pad", "Pad003")
body.addObject(pad4)
pad4.Profile = sketch10
pad4.setExpression("Length", "Params.pad4_length")

doc.recompute()
